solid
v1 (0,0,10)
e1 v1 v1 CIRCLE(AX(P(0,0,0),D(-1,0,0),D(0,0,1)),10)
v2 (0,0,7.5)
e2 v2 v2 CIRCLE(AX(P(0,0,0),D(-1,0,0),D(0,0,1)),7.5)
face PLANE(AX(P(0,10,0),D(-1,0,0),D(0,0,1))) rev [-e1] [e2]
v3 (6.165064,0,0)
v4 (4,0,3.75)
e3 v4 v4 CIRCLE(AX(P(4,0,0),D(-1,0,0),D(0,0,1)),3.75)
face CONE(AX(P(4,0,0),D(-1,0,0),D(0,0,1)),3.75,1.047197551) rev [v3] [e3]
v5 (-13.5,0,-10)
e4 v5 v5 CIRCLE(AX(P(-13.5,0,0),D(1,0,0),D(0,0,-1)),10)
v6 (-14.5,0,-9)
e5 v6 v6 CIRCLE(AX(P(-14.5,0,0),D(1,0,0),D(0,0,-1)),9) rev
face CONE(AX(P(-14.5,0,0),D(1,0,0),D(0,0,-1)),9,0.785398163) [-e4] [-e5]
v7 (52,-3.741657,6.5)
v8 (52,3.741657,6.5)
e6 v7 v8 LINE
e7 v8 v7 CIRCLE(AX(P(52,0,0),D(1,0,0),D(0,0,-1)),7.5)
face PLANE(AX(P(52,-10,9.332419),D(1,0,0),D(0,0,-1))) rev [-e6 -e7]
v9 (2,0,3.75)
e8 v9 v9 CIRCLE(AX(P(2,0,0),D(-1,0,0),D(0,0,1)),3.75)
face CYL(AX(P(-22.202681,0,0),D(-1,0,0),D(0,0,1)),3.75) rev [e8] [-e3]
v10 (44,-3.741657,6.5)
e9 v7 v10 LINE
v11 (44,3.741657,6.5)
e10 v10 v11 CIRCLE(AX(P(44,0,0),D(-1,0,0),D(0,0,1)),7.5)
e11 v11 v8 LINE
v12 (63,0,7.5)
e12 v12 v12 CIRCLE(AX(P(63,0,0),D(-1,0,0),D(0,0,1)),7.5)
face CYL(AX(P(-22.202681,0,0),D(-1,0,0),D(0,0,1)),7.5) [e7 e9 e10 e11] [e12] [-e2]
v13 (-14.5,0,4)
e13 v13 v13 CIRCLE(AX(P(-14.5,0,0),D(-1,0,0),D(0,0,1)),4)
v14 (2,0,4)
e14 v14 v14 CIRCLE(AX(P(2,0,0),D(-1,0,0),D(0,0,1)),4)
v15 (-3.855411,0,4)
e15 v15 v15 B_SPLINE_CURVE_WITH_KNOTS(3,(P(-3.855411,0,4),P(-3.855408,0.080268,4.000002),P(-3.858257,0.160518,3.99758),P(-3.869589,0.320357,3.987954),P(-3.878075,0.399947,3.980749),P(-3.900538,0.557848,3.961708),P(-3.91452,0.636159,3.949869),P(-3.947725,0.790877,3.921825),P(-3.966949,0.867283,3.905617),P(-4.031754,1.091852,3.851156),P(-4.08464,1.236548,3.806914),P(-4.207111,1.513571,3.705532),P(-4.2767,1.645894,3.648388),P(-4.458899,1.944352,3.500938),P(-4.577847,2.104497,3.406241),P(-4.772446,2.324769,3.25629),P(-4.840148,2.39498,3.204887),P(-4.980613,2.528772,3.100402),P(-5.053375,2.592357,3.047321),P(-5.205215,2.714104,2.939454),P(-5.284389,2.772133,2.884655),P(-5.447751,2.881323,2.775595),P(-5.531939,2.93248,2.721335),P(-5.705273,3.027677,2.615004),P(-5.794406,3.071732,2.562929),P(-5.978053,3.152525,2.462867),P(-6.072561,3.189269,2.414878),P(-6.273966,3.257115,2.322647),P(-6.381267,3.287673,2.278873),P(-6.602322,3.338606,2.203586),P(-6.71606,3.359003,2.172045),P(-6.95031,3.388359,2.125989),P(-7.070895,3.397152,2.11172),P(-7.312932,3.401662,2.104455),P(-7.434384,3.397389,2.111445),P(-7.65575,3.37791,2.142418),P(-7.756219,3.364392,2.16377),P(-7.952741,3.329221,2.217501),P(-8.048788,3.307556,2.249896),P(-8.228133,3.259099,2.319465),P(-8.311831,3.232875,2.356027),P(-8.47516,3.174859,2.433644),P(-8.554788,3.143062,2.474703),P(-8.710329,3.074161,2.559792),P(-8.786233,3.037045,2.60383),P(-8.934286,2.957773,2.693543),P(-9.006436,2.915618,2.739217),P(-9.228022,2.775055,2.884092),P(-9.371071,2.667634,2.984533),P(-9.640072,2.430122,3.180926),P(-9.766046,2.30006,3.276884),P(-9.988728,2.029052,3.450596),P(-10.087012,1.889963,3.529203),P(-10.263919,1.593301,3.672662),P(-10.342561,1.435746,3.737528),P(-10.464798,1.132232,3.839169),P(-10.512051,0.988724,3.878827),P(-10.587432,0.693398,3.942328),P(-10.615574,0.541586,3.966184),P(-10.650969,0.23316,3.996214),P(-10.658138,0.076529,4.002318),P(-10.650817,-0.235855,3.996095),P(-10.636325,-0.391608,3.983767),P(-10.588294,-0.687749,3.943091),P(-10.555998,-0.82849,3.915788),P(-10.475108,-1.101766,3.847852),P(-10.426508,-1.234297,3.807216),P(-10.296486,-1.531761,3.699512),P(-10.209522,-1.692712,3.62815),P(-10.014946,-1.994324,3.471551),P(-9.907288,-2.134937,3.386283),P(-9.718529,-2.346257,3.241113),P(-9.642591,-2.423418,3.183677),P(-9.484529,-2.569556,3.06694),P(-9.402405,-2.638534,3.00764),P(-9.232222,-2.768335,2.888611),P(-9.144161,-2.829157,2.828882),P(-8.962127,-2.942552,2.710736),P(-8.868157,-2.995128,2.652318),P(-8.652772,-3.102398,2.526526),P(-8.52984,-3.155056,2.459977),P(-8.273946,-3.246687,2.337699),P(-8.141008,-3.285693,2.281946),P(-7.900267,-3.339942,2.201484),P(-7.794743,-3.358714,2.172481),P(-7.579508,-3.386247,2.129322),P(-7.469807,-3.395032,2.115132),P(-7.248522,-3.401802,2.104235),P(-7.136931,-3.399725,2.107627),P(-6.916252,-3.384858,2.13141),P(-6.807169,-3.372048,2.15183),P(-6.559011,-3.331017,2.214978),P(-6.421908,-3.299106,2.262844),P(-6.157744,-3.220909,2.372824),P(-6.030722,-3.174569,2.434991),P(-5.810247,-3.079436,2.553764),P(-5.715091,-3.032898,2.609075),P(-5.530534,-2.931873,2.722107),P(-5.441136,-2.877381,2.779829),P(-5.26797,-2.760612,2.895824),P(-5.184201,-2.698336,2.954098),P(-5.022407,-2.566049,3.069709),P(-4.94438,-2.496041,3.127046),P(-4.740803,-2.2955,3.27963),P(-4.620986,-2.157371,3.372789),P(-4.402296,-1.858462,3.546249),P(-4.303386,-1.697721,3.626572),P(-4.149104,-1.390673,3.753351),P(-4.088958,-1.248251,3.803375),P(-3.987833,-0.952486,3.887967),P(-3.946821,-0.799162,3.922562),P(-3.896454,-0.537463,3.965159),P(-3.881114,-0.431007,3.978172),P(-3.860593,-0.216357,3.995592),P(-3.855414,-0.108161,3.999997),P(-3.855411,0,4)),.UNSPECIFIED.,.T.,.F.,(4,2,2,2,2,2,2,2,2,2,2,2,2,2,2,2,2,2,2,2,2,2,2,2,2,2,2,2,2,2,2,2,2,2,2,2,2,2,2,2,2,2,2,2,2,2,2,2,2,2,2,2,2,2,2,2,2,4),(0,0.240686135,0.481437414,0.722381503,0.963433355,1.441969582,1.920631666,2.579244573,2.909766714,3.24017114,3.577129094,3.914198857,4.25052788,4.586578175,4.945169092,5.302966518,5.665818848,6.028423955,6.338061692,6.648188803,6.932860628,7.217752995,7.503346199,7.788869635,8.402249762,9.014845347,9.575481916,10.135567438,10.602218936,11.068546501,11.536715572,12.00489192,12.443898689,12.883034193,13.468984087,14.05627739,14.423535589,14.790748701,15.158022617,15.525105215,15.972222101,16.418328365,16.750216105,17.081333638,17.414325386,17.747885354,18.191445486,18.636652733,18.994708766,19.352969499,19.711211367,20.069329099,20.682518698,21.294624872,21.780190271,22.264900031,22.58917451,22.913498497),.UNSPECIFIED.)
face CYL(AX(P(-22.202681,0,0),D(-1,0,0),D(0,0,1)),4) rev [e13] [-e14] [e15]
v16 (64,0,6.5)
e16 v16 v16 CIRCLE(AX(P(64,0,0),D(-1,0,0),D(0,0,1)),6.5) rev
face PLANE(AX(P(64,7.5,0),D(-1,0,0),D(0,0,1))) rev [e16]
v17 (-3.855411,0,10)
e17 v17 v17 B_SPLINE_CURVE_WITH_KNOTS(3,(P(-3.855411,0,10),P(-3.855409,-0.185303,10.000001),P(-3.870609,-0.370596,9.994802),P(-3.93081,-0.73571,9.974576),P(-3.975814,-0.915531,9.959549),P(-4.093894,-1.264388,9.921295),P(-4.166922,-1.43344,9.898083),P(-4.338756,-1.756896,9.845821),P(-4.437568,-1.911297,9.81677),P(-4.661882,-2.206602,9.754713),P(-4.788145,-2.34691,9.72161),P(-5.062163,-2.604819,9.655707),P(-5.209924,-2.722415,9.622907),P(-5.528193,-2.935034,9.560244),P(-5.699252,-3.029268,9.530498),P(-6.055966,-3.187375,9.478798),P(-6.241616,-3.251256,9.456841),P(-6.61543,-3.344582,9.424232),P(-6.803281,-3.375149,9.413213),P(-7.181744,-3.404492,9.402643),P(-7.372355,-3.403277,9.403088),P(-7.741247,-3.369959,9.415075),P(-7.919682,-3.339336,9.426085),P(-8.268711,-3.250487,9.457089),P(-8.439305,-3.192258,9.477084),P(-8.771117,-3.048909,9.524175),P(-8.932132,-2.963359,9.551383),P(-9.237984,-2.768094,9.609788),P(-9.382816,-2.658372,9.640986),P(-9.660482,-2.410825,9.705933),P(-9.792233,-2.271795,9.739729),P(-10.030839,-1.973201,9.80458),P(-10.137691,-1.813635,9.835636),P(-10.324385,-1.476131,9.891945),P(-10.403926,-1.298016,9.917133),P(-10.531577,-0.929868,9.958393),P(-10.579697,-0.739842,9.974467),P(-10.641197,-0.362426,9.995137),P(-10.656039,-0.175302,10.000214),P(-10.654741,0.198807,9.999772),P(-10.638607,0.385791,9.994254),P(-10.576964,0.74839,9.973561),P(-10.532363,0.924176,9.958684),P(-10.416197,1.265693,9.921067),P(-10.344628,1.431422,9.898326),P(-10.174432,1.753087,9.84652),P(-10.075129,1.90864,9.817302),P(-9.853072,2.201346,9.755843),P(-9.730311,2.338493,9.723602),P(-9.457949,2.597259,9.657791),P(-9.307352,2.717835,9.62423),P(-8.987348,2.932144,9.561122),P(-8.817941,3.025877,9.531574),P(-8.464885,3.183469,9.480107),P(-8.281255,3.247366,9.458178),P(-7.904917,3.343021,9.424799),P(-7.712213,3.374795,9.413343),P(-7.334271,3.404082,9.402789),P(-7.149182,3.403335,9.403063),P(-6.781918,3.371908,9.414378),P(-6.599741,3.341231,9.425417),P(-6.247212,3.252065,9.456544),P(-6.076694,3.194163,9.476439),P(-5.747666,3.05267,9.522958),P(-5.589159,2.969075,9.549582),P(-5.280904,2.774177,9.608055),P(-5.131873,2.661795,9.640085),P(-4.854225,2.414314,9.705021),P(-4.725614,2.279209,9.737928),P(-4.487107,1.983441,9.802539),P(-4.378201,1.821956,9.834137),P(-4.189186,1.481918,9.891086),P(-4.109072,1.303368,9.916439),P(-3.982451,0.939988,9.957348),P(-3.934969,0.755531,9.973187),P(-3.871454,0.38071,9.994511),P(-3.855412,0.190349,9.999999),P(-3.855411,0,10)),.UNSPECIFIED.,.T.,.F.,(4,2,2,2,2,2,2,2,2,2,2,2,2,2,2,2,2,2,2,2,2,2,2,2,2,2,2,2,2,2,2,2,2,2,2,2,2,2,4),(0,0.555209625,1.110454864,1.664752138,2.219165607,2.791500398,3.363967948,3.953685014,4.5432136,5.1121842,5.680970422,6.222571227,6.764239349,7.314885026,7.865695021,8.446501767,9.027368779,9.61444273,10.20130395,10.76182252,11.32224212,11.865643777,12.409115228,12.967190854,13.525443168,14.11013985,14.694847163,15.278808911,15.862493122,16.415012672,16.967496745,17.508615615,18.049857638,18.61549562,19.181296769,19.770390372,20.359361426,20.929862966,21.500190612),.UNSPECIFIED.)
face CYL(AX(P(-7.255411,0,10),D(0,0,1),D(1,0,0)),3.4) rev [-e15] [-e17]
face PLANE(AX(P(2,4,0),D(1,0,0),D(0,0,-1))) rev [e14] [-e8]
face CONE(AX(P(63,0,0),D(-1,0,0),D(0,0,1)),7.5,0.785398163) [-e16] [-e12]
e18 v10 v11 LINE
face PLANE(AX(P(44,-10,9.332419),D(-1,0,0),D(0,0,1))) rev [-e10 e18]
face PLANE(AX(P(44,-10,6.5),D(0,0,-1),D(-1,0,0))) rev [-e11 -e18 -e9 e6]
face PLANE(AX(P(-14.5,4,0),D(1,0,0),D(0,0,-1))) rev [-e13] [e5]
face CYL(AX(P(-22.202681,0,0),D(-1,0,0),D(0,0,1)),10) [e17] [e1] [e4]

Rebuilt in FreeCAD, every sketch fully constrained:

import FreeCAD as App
import Part
import Sketcher
from FreeCAD import Vector
Q = App.Units.Quantity


def edges_at(feature, points):
    """Names of the edges that pass closest to the given points."""
    edges = feature.Shape.Edges
    near = lambda p: min(range(len(edges)), key=lambda i: edges[i].distToShape(Part.Vertex(*p))[0])
    return sorted({f"Edge{near(p) + 1}" for p in points})

doc = App.newDocument("Part")
body = doc.addObject("PartDesign::Body", "Body")

sketch1 = doc.addObject("Sketcher::SketchObject", "Sketch")
body.addObject(sketch1)
sketch1.AttachmentSupport = (doc.XY_Plane, [""])
sketch1.MapMode = "FlatFace"
sketch1.addGeometry(Part.LineSegment(Vector(-14.5, 10, 0), Vector(-14.5, 4, 0)), False)
sketch1.addGeometry(Part.LineSegment(Vector(-14.5, 4, 0), Vector(2, 4, 0)), False)
sketch1.addGeometry(Part.LineSegment(Vector(2, 4, 0), Vector(2, 3.75, 0)), False)
sketch1.addGeometry(Part.LineSegment(Vector(2, 3.75, 0), Vector(4, 3.75, 0)), False)
sketch1.addGeometry(Part.LineSegment(Vector(4, 3.75, 0), Vector(6.17, 0, 0)), False)
sketch1.addGeometry(Part.LineSegment(Vector(6.17, 0, 0), Vector(64, 0, 0)), False)
sketch1.addGeometry(Part.LineSegment(Vector(64, 0, 0), Vector(64, 7.5, 0)), False)
sketch1.addGeometry(Part.LineSegment(Vector(64, 7.5, 0), Vector(0, 7.5, 0)), False)
sketch1.addGeometry(Part.LineSegment(Vector(0, 7.5, 0), Vector(0, 10, 0)), False)
sketch1.addGeometry(Part.LineSegment(Vector(0, 10, 0), Vector(-14.5, 10, 0)), False)
sketch1.addConstraint(Sketcher.Constraint("Coincident", 0, 2, 1, 1))
sketch1.addConstraint(Sketcher.Constraint("Coincident", 1, 2, 2, 1))
sketch1.addConstraint(Sketcher.Constraint("Coincident", 2, 2, 3, 1))
sketch1.addConstraint(Sketcher.Constraint("Coincident", 3, 2, 4, 1))
sketch1.addConstraint(Sketcher.Constraint("Coincident", 4, 2, 5, 1))
sketch1.addConstraint(Sketcher.Constraint("Coincident", 5, 2, 6, 1))
sketch1.addConstraint(Sketcher.Constraint("Coincident", 6, 2, 7, 1))
sketch1.addConstraint(Sketcher.Constraint("Coincident", 7, 2, 8, 1))
sketch1.addConstraint(Sketcher.Constraint("Coincident", 8, 2, 9, 1))
sketch1.addConstraint(Sketcher.Constraint("Coincident", 9, 2, 0, 1))
sketch1.addConstraint(Sketcher.Constraint("Vertical", 0))
sketch1.addConstraint(Sketcher.Constraint("Horizontal", 1))
sketch1.addConstraint(Sketcher.Constraint("Vertical", 2))
sketch1.addConstraint(Sketcher.Constraint("Horizontal", 3))
sketch1.addConstraint(Sketcher.Constraint("Horizontal", 5))
sketch1.addConstraint(Sketcher.Constraint("Vertical", 6))
sketch1.addConstraint(Sketcher.Constraint("Horizontal", 7))
sketch1.addConstraint(Sketcher.Constraint("Vertical", 8))
sketch1.addConstraint(Sketcher.Constraint("Horizontal", 9))
sketch1.addConstraint(Sketcher.Constraint("PointOnObject", 4, 2, -1))
sketch1.addConstraint(Sketcher.Constraint("PointOnObject", 7, 2, -2))
sketch1.addConstraint(Sketcher.Constraint("DistanceX", 3, 1, 3, 2, Q("2 mm")))
sketch1.addConstraint(Sketcher.Constraint("DistanceX", 7, 2, 7, 1, Q("64 mm")))
sketch1.addConstraint(Sketcher.Constraint("DistanceY", 0, 2, 0, 1, Q("6 mm")))
sketch1.addConstraint(Sketcher.Constraint("Angle", 4, Q("-60 deg")))
sketch1.addConstraint(Sketcher.Constraint("DistanceX", 1, 1, 1, 2, Q("16.5 mm")))
sketch1.addConstraint(Sketcher.Constraint("DistanceX", 9, 2, 9, 1, Q("14.5 mm")))
sketch1.addConstraint(Sketcher.Constraint("DistanceY", 6, 1, 6, 2, Q("7.5 mm")))
sketch1.addConstraint(Sketcher.Constraint("DistanceY", 8, 1, 8, 2, Q("2.5 mm")))
sketch1.addConstraint(Sketcher.Constraint("DistanceY", 2, 2, 2, 1, Q("0.25 mm")))
revolution = doc.addObject("PartDesign::Revolution", "Revolution")
body.addObject(revolution)
revolution.Profile = sketch1
revolution.ReferenceAxis = (sketch1, ["H_Axis"])
revolution.Angle = 360
doc.recompute()

chamfer = doc.addObject("PartDesign::Chamfer", "Chamfer")
body.addObject(chamfer)
chamfer.Base = (revolution, edges_at(revolution, [(64, 0, -7.5), (-14.5, 0, -10)]))
chamfer.Size = 1

sketch2 = doc.addObject("Sketcher::SketchObject", "Sketch001")
body.addObject(sketch2)
sketch2.AttachmentSupport = (doc.XY_Plane, [""])
sketch2.MapMode = "FlatFace"
sketch2.AttachmentOffset = App.Placement(Vector(0, 0, 10), App.Rotation())
sketch2.addGeometry(Part.Circle(Vector(-7.3, 0, 0), Vector(0, 0, 1), 3.4), False)
sketch2.addConstraint(Sketcher.Constraint("PointOnObject", 0, 3, -1))
sketch2.addConstraint(Sketcher.Constraint("Diameter", 0, Q("6.8 mm")))
sketch2.addConstraint(Sketcher.Constraint("DistanceX", 0, 3, -1, 1, Q("7.255411 mm")))
pocket1 = doc.addObject("PartDesign::Pocket", "Pocket")
body.addObject(pocket1)
pocket1.Profile = sketch2
pocket1.Type = "UpToFirst"

sketch3 = doc.addObject("Sketcher::SketchObject", "Sketch002")
body.addObject(sketch3)
sketch3.AttachmentSupport = (doc.XZ_Plane, [""])
sketch3.MapMode = "FlatFace"
sketch3.addGeometry(Part.LineSegment(Vector(44, 6.5, 0), Vector(44, 9.3, 0)), False)
sketch3.addGeometry(Part.LineSegment(Vector(44, 9.3, 0), Vector(52, 9.3, 0)), False)
sketch3.addGeometry(Part.LineSegment(Vector(52, 9.3, 0), Vector(52, 6.5, 0)), False)
sketch3.addGeometry(Part.LineSegment(Vector(52, 6.5, 0), Vector(44, 6.5, 0)), False)
sketch3.addConstraint(Sketcher.Constraint("Coincident", 0, 2, 1, 1))
sketch3.addConstraint(Sketcher.Constraint("Coincident", 1, 2, 2, 1))
sketch3.addConstraint(Sketcher.Constraint("Coincident", 2, 2, 3, 1))
sketch3.addConstraint(Sketcher.Constraint("Coincident", 3, 2, 0, 1))
sketch3.addConstraint(Sketcher.Constraint("Vertical", 0))
sketch3.addConstraint(Sketcher.Constraint("Horizontal", 1))
sketch3.addConstraint(Sketcher.Constraint("Vertical", 2))
sketch3.addConstraint(Sketcher.Constraint("Horizontal", 3))
sketch3.addConstraint(Sketcher.Constraint("DistanceX", 1, 1, 1, 2, Q("8 mm")))
sketch3.addConstraint(Sketcher.Constraint("DistanceX", -1, 1, 0, 2, Q("44 mm")))
sketch3.addConstraint(Sketcher.Constraint("DistanceY", -1, 1, 2, 2, Q("6.5 mm")))
sketch3.addConstraint(Sketcher.Constraint("DistanceY", 0, 1, 0, 2, Q("2.832419 mm")))
pocket2 = doc.addObject("PartDesign::Pocket", "Pocket001")
body.addObject(pocket2)
pocket2.Profile = sketch3
pocket2.Type = "ThroughAll"
pocket2.Midplane = True

doc.recompute()
